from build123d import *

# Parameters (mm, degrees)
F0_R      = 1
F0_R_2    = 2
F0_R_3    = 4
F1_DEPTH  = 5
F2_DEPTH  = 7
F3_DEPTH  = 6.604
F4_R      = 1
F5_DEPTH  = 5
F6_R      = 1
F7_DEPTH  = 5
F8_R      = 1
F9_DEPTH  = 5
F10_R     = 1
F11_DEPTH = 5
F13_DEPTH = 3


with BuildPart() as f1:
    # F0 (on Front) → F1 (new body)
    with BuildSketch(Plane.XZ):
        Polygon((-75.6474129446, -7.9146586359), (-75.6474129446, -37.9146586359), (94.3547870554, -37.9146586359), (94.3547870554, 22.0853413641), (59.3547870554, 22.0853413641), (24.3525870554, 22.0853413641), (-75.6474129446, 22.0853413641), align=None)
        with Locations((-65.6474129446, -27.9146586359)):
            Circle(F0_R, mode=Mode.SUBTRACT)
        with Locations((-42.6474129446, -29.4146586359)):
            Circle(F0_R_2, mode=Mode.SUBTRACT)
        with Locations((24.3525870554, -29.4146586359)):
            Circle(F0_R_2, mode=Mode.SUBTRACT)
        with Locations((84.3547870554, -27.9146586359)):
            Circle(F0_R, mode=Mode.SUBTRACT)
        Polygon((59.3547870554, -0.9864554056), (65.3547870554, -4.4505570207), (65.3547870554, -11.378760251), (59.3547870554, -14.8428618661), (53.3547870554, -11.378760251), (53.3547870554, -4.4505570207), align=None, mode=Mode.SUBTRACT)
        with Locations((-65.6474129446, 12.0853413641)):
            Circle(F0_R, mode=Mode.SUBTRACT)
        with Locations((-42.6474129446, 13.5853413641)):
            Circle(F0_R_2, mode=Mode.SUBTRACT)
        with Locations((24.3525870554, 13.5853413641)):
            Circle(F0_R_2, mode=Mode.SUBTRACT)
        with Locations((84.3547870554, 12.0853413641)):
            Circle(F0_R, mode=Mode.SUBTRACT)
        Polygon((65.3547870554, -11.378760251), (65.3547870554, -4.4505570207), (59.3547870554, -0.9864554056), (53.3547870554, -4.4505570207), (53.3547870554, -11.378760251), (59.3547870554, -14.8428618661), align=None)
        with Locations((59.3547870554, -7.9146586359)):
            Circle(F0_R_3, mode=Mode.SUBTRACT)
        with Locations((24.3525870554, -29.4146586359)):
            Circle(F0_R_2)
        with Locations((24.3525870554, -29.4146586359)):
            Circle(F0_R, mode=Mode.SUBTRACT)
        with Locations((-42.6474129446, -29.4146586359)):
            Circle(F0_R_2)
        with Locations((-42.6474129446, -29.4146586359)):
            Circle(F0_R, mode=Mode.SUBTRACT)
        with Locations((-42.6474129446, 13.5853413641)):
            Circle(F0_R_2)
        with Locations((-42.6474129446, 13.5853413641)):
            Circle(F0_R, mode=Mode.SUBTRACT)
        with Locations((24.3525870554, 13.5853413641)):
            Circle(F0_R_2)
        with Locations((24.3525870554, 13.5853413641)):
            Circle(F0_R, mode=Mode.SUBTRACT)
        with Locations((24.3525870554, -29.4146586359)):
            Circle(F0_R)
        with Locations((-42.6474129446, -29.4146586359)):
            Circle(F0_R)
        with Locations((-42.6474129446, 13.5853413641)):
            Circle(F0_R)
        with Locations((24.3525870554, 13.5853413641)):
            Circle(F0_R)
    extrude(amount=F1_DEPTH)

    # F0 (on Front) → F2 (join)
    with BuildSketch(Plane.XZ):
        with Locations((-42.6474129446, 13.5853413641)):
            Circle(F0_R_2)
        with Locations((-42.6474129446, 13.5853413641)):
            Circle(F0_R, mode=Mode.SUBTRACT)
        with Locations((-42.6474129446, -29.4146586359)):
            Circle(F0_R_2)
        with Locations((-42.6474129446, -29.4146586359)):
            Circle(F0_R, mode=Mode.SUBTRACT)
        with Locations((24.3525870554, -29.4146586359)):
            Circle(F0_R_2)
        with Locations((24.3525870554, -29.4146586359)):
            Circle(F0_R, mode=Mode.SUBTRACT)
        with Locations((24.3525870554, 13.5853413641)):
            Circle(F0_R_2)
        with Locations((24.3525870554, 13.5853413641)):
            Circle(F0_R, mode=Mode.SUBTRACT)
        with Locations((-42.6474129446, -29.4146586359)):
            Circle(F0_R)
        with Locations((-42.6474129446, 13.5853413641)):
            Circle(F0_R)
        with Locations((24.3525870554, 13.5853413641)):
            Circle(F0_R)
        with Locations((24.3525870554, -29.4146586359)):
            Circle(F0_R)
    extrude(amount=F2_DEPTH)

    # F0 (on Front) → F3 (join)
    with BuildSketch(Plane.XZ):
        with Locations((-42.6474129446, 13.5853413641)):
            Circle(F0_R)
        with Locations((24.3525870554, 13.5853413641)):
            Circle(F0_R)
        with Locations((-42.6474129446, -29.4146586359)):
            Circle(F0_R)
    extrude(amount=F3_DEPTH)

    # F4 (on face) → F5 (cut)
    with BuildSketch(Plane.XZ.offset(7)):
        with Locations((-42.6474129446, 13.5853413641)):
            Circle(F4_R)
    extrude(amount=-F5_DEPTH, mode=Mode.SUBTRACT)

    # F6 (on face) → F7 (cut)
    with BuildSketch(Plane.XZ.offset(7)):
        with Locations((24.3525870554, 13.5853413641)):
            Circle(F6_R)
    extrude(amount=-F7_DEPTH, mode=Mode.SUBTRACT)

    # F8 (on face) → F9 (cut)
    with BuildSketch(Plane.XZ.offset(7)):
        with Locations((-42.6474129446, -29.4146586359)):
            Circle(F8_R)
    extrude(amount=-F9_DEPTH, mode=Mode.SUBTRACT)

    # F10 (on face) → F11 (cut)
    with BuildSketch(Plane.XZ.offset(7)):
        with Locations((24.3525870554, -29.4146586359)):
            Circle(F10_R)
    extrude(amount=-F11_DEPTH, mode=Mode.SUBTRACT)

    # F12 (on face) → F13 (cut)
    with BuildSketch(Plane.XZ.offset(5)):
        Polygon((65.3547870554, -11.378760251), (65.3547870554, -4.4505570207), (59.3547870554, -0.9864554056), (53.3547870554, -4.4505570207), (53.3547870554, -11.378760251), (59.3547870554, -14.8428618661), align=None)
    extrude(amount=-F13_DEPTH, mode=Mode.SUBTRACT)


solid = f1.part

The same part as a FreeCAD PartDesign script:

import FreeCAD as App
import Part
import Sketcher
from FreeCAD import Vector
Q = App.Units.Quantity

doc = App.newDocument("Part")
params = doc.addObject("Spreadsheet::Sheet", "Params")
for row, (alias, value) in enumerate([
    ("sketch1_diameter", "2 mm"),
    ("sketch1_diameter2", "8 mm"),
    ("sketch1_height", "60 mm"),
    ("pad1_length", "5 mm"),
    ("sketch2_diameter", "4 mm"),
    ("pad2_length", "7 mm"),
    ("sketch3_diameter", "2 mm"),
    ("pad3_length", "6.604 mm"),
    ("sketch4_diameter", "2 mm"),
    ("pocket1_length", "5 mm"),
    ("sketch5_diameter", "2 mm"),
    ("pocket2_length", "5 mm"),
    ("sketch6_diameter", "2 mm"),
    ("pocket3_length", "5 mm"),
    ("sketch7_diameter", "2 mm"),
    ("pocket4_length", "5 mm"),
    ("pocket5_length", "3 mm"),
], start=1):
    params.set(f"A{row}", alias)
    params.set(f"B{row}", "=" + value)
    params.setAlias(f"B{row}", alias)

body = doc.addObject("PartDesign::Body", "Body")

# Sketch on XZ plane
sketch1 = body.newObject("Sketcher::SketchObject", "Sketch")
sketch1.AttachmentSupport = (doc.getObject("XZ_Plane"), [""])
sketch1.MapMode = "FlatFace"
sketch1.addGeometry([
    Part.LineSegment(Vector(-75.6, -37.9, 0), Vector(94.4, -37.9, 0)),  # 0
    Part.LineSegment(Vector(94.4, -37.9, 0), Vector(94.4, 22.1, 0)),  # 1
    Part.LineSegment(Vector(94.4, 22.1, 0), Vector(-75.6, 22.1, 0)),  # 2
    Part.LineSegment(Vector(-75.6, 22.1, 0), Vector(-75.6, -37.9, 0)),  # 3
    Part.Circle(Vector(-65.6, -27.9, 0), Vector(0, 0, 1), 1),  # 4
    Part.Circle(Vector(84.4, -27.9, 0), Vector(0, 0, 1), 1),  # 5
    Part.Circle(Vector(-65.6, 12.1, 0), Vector(0, 0, 1), 1),  # 6
    Part.Circle(Vector(59.4, -7.9, 0), Vector(0, 0, 1), 4),  # 7
    Part.Circle(Vector(84.4, 12.1, 0), Vector(0, 0, 1), 1),  # 8
], False)
sketch1.addConstraint([
    Sketcher.Constraint("Coincident", 0, 2, 1, 1),
    Sketcher.Constraint("Coincident", 1, 2, 2, 1),
    Sketcher.Constraint("Coincident", 2, 2, 3, 1),
    Sketcher.Constraint("Coincident", 3, 2, 0, 1),
    Sketcher.Constraint("Horizontal", 0),
    Sketcher.Constraint("Vertical", 1),
    Sketcher.Constraint("Horizontal", 2),
    Sketcher.Constraint("Vertical", 3),
    Sketcher.Constraint("Equal", 4, 5),
    Sketcher.Constraint("Equal", 5, 6),
    Sketcher.Constraint("Equal", 6, 8),
    Sketcher.Constraint("Horizontal", 4, 3, 5, 3),
    Sketcher.Constraint("Horizontal", 6, 3, 8, 3),
    Sketcher.Constraint("Vertical", 4, 3, 6, 3),
    Sketcher.Constraint("Vertical", 5, 3, 8, 3),
    Sketcher.Constraint("Diameter", 4, 2.0),
    Sketcher.Constraint("Diameter", 7, 8.0),
    Sketcher.Constraint("DistanceY", 1, 1, 1, 2, 60.0),
    Sketcher.Constraint("DistanceY", 4, 3, 6, 3, 40.0),
    Sketcher.Constraint("DistanceX", 7, 3, 5, 3, 25.0),
    Sketcher.Constraint("DistanceY", 5, 3, 7, 3, 20.0),
    Sketcher.Constraint("DistanceX", 5, 3, 0, 2, 10.0),
    Sketcher.Constraint("DistanceY", 0, 2, 5, 3, 10.0),
    Sketcher.Constraint("DistanceX", 2, 2, 6, 3, 10.0),
    Sketcher.Constraint("DistanceX", 0, 1, 0, 2, 170.0022),
    Sketcher.Constraint("DistanceY", 4, 3, -1, 1, 27.914659),
    Sketcher.Constraint("DistanceX", 4, 3, -1, 1, 65.647413),
])
sketch1.setExpression("Constraints[15]", "Params.sketch1_diameter")
sketch1.setExpression("Constraints[16]", "Params.sketch1_diameter2")
sketch1.setExpression("Constraints[17]", "Params.sketch1_height")
pad1 = body.newObject("PartDesign::Pad", "Pad")
pad1.Profile = sketch1
pad1.setExpression("Length", "Params.pad1_length")

# Sketch on XZ plane
sketch2 = body.newObject("Sketcher::SketchObject", "Sketch001")
sketch2.AttachmentSupport = (doc.getObject("XZ_Plane"), [""])
sketch2.MapMode = "FlatFace"
sketch2.addGeometry([
    Part.Circle(Vector(-42.6, 13.6, 0), Vector(0, 0, 1), 2),
    Part.Circle(Vector(-42.6, -29.4, 0), Vector(0, 0, 1), 2),
    Part.Circle(Vector(24.4, -29.4, 0), Vector(0, 0, 1), 2),
    Part.Circle(Vector(24.4, 13.6, 0), Vector(0, 0, 1), 2),
], False)
sketch2.addConstraint([
    Sketcher.Constraint("Equal", 0, 1),
    Sketcher.Constraint("Equal", 1, 2),
    Sketcher.Constraint("Equal", 2, 3),
    Sketcher.Constraint("Horizontal", 1, 3, 2, 3),
    Sketcher.Constraint("Horizontal", 0, 3, 3, 3),
    Sketcher.Constraint("Vertical", 0, 3, 1, 3),
    Sketcher.Constraint("Vertical", 2, 3, 3, 3),
    Sketcher.Constraint("Diameter", 0, 4.0),
    Sketcher.Constraint("DistanceY", 1, 3, 0, 3, 43.0),
    Sketcher.Constraint("DistanceX", 1, 3, 2, 3, 67.0),
    Sketcher.Constraint("DistanceY", -1, 1, 0, 3, 13.585341),
    Sketcher.Constraint("DistanceX", 0, 3, -1, 1, 42.647413),
])
sketch2.setExpression("Constraints[7]", "Params.sketch2_diameter")
pad2 = body.newObject("PartDesign::Pad", "Pad001")
pad2.Profile = sketch2
pad2.setExpression("Length", "Params.pad2_length")

# Sketch on XZ plane
sketch3 = body.newObject("Sketcher::SketchObject", "Sketch002")
sketch3.AttachmentSupport = (doc.getObject("XZ_Plane"), [""])
sketch3.MapMode = "FlatFace"
sketch3.addGeometry([
    Part.Circle(Vector(-42.6, 13.6, 0), Vector(0, 0, 1), 1),
    Part.Circle(Vector(24.4, 13.6, 0), Vector(0, 0, 1), 1),
    Part.Circle(Vector(-42.6, -29.4, 0), Vector(0, 0, 1), 1),
], False)
sketch3.addConstraint([
    Sketcher.Constraint("Equal", 0, 1),
    Sketcher.Constraint("Equal", 1, 2),
    Sketcher.Constraint("Horizontal", 0, 3, 1, 3),
    Sketcher.Constraint("Vertical", 0, 3, 2, 3),
    Sketcher.Constraint("Diameter", 0, 2.0),
    Sketcher.Constraint("DistanceX", 0, 3, 1, 3, 67.0),
    Sketcher.Constraint("DistanceY", 2, 3, 0, 3, 43.0),
    Sketcher.Constraint("DistanceY", -1, 1, 0, 3, 13.585341),
    Sketcher.Constraint("DistanceX", 0, 3, -1, 1, 42.647413),
])
sketch3.setExpression("Constraints[4]", "Params.sketch3_diameter")
pad3 = body.newObject("PartDesign::Pad", "Pad002")
pad3.Profile = sketch3
pad3.setExpression("Length", "Params.pad3_length")

# Sketch on XZ plane
sketch4 = body.newObject("Sketcher::SketchObject", "Sketch003")
sketch4.AttachmentSupport = (doc.getObject("XZ_Plane"), [""])
sketch4.MapMode = "FlatFace"
sketch4.AttachmentOffset = App.Placement(Vector(0, 0, 7), App.Rotation())
sketch4.addGeometry(Part.Circle(Vector(-42.6, 13.6, 0), Vector(0, 0, 1), 1), False)
sketch4.addConstraint([
    Sketcher.Constraint("Diameter", 0, 2.0),
    Sketcher.Constraint("DistanceY", -1, 1, 0, 3, 13.585341),
    Sketcher.Constraint("DistanceX", 0, 3, -1, 1, 42.647413),
])
sketch4.setExpression("Constraints[0]", "Params.sketch4_diameter")
pocket1 = body.newObject("PartDesign::Pocket", "Pocket")
pocket1.Profile = sketch4
pocket1.setExpression("Length", "Params.pocket1_length")

# Sketch on XZ plane
sketch5 = body.newObject("Sketcher::SketchObject", "Sketch004")
sketch5.AttachmentSupport = (doc.getObject("XZ_Plane"), [""])
sketch5.MapMode = "FlatFace"
sketch5.AttachmentOffset = App.Placement(Vector(0, 0, 7), App.Rotation())
sketch5.addGeometry(Part.Circle(Vector(24.4, 13.6, 0), Vector(0, 0, 1), 1), False)
sketch5.addConstraint([
    Sketcher.Constraint("Diameter", 0, 2.0),
    Sketcher.Constraint("DistanceY", -1, 1, 0, 3, 13.585341),
    Sketcher.Constraint("DistanceX", -1, 1, 0, 3, 24.352587),
])
sketch5.setExpression("Constraints[0]", "Params.sketch5_diameter")
pocket2 = body.newObject("PartDesign::Pocket", "Pocket001")
pocket2.Profile = sketch5
pocket2.setExpression("Length", "Params.pocket2_length")

# Sketch on XZ plane
sketch6 = body.newObject("Sketcher::SketchObject", "Sketch005")
sketch6.AttachmentSupport = (doc.getObject("XZ_Plane"), [""])
sketch6.MapMode = "FlatFace"
sketch6.AttachmentOffset = App.Placement(Vector(0, 0, 7), App.Rotation())
sketch6.addGeometry(Part.Circle(Vector(-42.6, -29.4, 0), Vector(0, 0, 1), 1), False)
sketch6.addConstraint([
    Sketcher.Constraint("Diameter", 0, 2.0),
    Sketcher.Constraint("DistanceY", 0, 3, -1, 1, 29.414659),
    Sketcher.Constraint("DistanceX", 0, 3, -1, 1, 42.647413),
])
sketch6.setExpression("Constraints[0]", "Params.sketch6_diameter")
pocket3 = body.newObject("PartDesign::Pocket", "Pocket002")
pocket3.Profile = sketch6
pocket3.setExpression("Length", "Params.pocket3_length")

# Sketch on XZ plane
sketch7 = body.newObject("Sketcher::SketchObject", "Sketch006")
sketch7.AttachmentSupport = (doc.getObject("XZ_Plane"), [""])
sketch7.MapMode = "FlatFace"
sketch7.AttachmentOffset = App.Placement(Vector(0, 0, 7), App.Rotation())
sketch7.addGeometry(Part.Circle(Vector(24.4, -29.4, 0), Vector(0, 0, 1), 1), False)
sketch7.addConstraint([
    Sketcher.Constraint("Diameter", 0, 2.0),
    Sketcher.Constraint("DistanceY", 0, 3, -1, 1, 29.414659),
    Sketcher.Constraint("DistanceX", -1, 1, 0, 3, 24.352587),
])
sketch7.setExpression("Constraints[0]", "Params.sketch7_diameter")
pocket4 = body.newObject("PartDesign::Pocket", "Pocket003")
pocket4.Profile = sketch7
pocket4.setExpression("Length", "Params.pocket4_length")

# Sketch on XZ plane
sketch8 = body.newObject("Sketcher::SketchObject", "Sketch007")
sketch8.AttachmentSupport = (doc.getObject("XZ_Plane"), [""])
sketch8.MapMode = "FlatFace"
sketch8.AttachmentOffset = App.Placement(Vector(0, 0, 5), App.Rotation())
sketch8.addGeometry([
    Part.LineSegment(Vector(65, -11, 0), Vector(65, -4, 0)),  # 0
    Part.LineSegment(Vector(65, -4, 0), Vector(59, -1, 0)),  # 1
    Part.LineSegment(Vector(59, -1, 0), Vector(53, -4, 0)),  # 2
    Part.LineSegment(Vector(53, -4, 0), Vector(53, -11, 0)),  # 3
    Part.LineSegment(Vector(53, -11, 0), Vector(59, -15, 0)),  # 4
    Part.LineSegment(Vector(59, -15, 0), Vector(65, -11, 0)),  # 5
], False)
sketch8.addConstraint([
    Sketcher.Constraint("Coincident", 0, 2, 1, 1),
    Sketcher.Constraint("Coincident", 1, 2, 2, 1),
    Sketcher.Constraint("Coincident", 2, 2, 3, 1),
    Sketcher.Constraint("Coincident", 3, 2, 4, 1),
    Sketcher.Constraint("Coincident", 4, 2, 5, 1),
    Sketcher.Constraint("Coincident", 5, 2, 0, 1),
    Sketcher.Constraint("Vertical", 0),
    Sketcher.Constraint("Vertical", 3),
    Sketcher.Constraint("Parallel", 1, 4),
    Sketcher.Constraint("Parallel", 2, 5),
    Sketcher.Constraint("Horizontal", 0, 2, 2, 2),
    Sketcher.Constraint("Horizontal", 3, 2, 5, 2),
    Sketcher.Constraint("Vertical", 1, 2, 4, 2),
    Sketcher.Constraint("Angle", 1, Q("150 deg")),
    Sketcher.Constraint("DistanceX", 1, 2, 0, 2, 6.0),
    Sketcher.Constraint("DistanceY", 0, 1, 0, 2, 6.928203),
    Sketcher.Constraint("DistanceY", 3, 2, -1, 1, 11.37876),
    Sketcher.Constraint("DistanceX", -1, 1, 0, 2, 65.354787),
])
pocket5 = body.newObject("PartDesign::Pocket", "Pocket004")
pocket5.Profile = sketch8
pocket5.setExpression("Length", "Params.pocket5_length")

doc.recompute()
